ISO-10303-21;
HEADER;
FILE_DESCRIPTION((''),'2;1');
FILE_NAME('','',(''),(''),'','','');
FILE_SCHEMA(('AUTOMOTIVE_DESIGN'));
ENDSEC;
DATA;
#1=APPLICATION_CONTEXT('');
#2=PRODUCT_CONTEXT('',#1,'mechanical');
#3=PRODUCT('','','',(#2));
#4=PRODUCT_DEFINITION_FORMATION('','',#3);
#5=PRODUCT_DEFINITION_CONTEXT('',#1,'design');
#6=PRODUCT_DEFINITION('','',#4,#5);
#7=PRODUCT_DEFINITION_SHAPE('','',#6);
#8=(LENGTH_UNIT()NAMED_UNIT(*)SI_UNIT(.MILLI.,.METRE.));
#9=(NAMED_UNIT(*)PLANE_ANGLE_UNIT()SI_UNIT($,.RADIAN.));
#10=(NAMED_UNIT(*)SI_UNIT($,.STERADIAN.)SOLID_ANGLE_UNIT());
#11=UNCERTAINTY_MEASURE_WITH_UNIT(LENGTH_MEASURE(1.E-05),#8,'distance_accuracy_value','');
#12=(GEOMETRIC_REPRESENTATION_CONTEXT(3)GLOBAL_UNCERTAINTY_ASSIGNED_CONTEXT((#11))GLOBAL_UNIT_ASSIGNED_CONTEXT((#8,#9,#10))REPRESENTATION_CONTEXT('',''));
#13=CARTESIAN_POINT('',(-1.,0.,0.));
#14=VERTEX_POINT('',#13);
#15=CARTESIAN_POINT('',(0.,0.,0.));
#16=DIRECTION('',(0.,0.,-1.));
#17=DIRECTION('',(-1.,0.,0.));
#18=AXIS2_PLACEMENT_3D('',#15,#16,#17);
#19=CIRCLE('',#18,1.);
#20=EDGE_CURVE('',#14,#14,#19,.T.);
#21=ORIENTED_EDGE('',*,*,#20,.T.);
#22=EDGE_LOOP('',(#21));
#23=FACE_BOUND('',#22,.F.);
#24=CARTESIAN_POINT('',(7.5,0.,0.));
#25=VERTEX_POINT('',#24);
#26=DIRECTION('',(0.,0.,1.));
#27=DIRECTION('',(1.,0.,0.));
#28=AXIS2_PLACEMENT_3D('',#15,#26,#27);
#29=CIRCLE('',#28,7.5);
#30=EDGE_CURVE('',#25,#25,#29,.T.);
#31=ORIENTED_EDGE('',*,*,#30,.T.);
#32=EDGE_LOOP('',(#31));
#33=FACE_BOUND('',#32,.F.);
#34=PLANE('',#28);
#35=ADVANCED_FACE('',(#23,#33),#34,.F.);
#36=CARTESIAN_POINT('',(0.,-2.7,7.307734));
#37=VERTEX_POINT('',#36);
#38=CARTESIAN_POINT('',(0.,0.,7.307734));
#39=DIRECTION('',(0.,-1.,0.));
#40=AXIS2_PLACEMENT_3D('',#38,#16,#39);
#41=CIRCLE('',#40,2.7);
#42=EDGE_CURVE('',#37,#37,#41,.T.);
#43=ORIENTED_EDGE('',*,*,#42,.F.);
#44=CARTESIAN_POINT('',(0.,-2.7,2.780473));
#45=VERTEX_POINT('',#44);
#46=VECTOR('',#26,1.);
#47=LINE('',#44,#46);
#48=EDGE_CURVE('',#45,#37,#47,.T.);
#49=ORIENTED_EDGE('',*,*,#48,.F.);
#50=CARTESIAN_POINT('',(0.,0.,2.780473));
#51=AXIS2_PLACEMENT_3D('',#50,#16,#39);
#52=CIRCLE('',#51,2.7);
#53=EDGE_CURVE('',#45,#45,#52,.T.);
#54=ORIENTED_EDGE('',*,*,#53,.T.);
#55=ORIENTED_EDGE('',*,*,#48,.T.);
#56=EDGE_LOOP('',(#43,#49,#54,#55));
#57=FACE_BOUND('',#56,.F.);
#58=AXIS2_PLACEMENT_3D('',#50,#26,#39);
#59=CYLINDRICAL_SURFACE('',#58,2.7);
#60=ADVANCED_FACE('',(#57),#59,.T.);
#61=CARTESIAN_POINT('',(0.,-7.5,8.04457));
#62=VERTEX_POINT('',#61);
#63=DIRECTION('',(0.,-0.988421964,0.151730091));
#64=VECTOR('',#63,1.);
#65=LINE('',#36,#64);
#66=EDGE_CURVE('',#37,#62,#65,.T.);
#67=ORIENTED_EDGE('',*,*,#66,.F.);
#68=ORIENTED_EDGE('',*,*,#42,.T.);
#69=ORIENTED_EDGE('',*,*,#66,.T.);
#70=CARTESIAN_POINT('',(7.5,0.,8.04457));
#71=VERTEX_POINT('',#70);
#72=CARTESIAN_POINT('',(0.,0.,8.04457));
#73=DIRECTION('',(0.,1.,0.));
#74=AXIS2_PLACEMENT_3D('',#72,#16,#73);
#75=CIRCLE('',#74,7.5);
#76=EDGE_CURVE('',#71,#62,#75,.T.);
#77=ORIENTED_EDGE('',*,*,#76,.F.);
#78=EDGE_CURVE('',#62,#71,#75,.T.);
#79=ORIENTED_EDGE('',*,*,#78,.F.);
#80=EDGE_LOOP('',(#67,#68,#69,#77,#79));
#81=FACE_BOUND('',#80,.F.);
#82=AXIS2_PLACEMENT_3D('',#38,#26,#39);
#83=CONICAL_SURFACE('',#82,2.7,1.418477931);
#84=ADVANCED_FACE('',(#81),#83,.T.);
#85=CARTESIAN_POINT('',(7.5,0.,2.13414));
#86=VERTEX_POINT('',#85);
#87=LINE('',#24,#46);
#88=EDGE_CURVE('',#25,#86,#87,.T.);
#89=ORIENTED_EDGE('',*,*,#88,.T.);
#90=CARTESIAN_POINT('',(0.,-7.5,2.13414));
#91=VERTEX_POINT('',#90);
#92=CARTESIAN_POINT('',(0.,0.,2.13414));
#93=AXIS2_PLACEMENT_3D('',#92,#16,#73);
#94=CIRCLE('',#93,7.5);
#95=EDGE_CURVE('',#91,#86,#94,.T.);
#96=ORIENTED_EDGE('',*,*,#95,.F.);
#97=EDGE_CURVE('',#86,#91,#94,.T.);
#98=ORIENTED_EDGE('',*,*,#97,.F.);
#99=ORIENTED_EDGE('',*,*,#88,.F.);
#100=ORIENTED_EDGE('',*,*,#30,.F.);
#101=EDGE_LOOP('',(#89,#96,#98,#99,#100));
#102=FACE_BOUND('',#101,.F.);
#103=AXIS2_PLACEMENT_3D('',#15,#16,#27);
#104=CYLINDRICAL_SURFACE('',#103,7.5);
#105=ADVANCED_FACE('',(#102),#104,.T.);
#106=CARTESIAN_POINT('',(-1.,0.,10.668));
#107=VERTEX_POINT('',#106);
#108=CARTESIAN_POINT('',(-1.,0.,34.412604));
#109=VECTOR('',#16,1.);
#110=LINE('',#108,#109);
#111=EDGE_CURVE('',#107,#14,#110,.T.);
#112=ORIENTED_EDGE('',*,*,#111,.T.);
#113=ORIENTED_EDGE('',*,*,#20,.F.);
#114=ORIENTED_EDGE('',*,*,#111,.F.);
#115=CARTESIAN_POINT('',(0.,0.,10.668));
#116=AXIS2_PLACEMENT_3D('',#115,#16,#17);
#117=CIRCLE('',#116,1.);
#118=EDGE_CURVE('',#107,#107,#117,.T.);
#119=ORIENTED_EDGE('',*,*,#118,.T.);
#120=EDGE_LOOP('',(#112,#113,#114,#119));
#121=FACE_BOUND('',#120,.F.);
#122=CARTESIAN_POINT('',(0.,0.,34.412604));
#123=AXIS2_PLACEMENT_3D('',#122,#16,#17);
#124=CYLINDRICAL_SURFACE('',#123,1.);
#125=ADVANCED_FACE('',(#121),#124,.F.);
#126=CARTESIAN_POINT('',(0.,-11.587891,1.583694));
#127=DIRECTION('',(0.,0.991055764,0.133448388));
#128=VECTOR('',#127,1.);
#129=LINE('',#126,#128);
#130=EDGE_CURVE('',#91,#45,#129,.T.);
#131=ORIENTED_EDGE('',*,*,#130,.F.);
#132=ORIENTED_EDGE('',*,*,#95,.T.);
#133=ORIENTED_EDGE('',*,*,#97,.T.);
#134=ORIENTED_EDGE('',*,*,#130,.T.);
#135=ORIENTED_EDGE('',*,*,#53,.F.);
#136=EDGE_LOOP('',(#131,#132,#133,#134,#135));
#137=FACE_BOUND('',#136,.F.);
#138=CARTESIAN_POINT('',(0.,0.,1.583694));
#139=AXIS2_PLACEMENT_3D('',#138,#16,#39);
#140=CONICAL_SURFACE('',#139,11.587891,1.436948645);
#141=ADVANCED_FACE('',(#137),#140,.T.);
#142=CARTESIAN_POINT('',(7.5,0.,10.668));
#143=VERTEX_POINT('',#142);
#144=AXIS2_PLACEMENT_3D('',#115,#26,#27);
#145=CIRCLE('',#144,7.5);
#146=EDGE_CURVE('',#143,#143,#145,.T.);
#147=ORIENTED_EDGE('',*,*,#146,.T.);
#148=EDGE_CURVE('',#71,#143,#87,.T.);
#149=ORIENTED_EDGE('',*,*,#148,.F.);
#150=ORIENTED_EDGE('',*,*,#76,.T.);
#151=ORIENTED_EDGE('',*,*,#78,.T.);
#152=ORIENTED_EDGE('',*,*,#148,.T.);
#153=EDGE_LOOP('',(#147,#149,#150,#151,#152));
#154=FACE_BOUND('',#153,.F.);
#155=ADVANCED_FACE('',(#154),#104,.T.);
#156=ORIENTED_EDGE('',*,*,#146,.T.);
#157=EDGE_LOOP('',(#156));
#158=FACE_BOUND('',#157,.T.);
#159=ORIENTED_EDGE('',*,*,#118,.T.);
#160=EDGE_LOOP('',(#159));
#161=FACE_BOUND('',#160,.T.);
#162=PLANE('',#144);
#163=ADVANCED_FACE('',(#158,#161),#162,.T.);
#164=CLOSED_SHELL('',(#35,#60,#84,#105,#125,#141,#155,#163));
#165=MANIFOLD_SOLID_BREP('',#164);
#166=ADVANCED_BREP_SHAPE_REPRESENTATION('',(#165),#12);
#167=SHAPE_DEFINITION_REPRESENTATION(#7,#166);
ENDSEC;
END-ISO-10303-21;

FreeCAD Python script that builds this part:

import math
import FreeCAD as App
import Part
import Sketcher

doc = App.newDocument("Part")
body = doc.addObject("PartDesign::Body", "Body")

sketch1 = body.newObject("Sketcher::SketchObject", "Sketch")
sketch1.AttachmentSupport = (doc.getObject("XY_Plane"), [""])
sketch1.MapMode = "FlatFace"
sketch1.addGeometry(Part.Circle(App.Vector(0, 0, 0), App.Vector(0, 0, 1), 8), False)
sketch1.addConstraint(Sketcher.Constraint("Coincident", 0, 3, -1, 1))
sketch1.addConstraint(Sketcher.Constraint("Diameter", 0, 15.0))
pad1 = body.newObject("PartDesign::Pad", "Pad")
pad1.Profile = sketch1
pad1.Length = 10.668

sketch2 = body.newObject("Sketcher::SketchObject", "Sketch001")
sketch2.AttachmentSupport = (doc.getObject("YZ_Plane"), [""])
sketch2.MapMode = "FlatFace"
sketch2.addGeometry(Part.LineSegment(App.Vector(-11.6, 8.7, 0), App.Vector(-11.6, 7.5, 0)), False)
sketch2.addGeometry(Part.ArcOfCircle(Part.Circle(App.Vector(-10.8, 5.1, 0), App.Vector(0, 0, 1), 2.5), math.radians(108), math.radians(252)), False)
sketch2.addGeometry(Part.LineSegment(App.Vector(-11.6, 2.8, 0), App.Vector(-11.6, 1.6, 0)), False)
sketch2.addGeometry(Part.LineSegment(App.Vector(-11.6, 1.6, 0), App.Vector(-2.7, 2.8, 0)), False)
sketch2.addGeometry(Part.LineSegment(App.Vector(-2.7, 2.8, 0), App.Vector(-2.7, 7.3, 0)), False)
sketch2.addGeometry(Part.LineSegment(App.Vector(-2.7, 7.3, 0), App.Vector(-11.6, 8.7, 0)), False)
sketch2.addConstraint(Sketcher.Constraint("Coincident", 0, 2, 1, 1))
sketch2.addConstraint(Sketcher.Constraint("Coincident", 1, 2, 2, 1))
sketch2.addConstraint(Sketcher.Constraint("Coincident", 2, 2, 3, 1))
sketch2.addConstraint(Sketcher.Constraint("Coincident", 3, 2, 4, 1))
sketch2.addConstraint(Sketcher.Constraint("Coincident", 4, 2, 5, 1))
sketch2.addConstraint(Sketcher.Constraint("Coincident", 5, 2, 0, 1))
sketch2.addConstraint(Sketcher.Constraint("Vertical", 0))
sketch2.addConstraint(Sketcher.Constraint("Vertical", 2))
sketch2.addConstraint(Sketcher.Constraint("Vertical", 4))
sketch2.addConstraint(Sketcher.Constraint("Radius", 1, 2.5))
sketch2.addConstraint(Sketcher.Constraint("DistanceX", 3, 2, -1, 1, 2.7))
sketch2.addConstraint(Sketcher.Constraint("DistanceY", 2, 2, 2, 1, 1.1684))
sketch2.addConstraint(Sketcher.Constraint("DistanceY", 4, 1, 4, 2, 4.527261))
sketch2.addConstraint(Sketcher.Constraint("DistanceY", 1, 3, 4, 2, 2.176499))
sketch2.addConstraint(Sketcher.Constraint("Distance", 5, 9.016379))
sketch2.addConstraint(Sketcher.Constraint("DistanceY", 0, 2, 0, 1, 1.173327))
sketch2.addConstraint(Sketcher.Constraint("DistanceX", 1, 3, -1, 1, 10.819979))
sketch2.addConstraint(Sketcher.Constraint("DistanceX", 1, 2, -1, 1, 11.587891))
sketch2.addConstraint(Sketcher.Constraint("DistanceY", -1, 1, 5, 2, 8.67579))
groove = body.newObject("PartDesign::Groove", "Groove")
groove.Profile = sketch2
groove.ReferenceAxis = (sketch2, ["V_Axis"])
groove.Angle = 360

sketch3 = body.newObject("Sketcher::SketchObject", "Sketch002")
sketch3.AttachmentSupport = (doc.getObject("XY_Plane"), [""])
sketch3.MapMode = "FlatFace"
sketch3.AttachmentOffset = App.Placement(App.Vector(0, 0, 10.668), App.Rotation())
sketch3.addGeometry(Part.Circle(App.Vector(0, 0, 0), App.Vector(0, 0, 1), 1), False)
sketch3.addConstraint(Sketcher.Constraint("Coincident", 0, 3, -1, 1))
sketch3.addConstraint(Sketcher.Constraint("Diameter", 0, 2.0))
doc.recompute()
hole = body.newObject("PartDesign::Hole", "Hole")
hole.Profile = sketch3
hole.ThreadType = "None"
hole.Diameter = 2
hole.DepthType = "ThroughAll"

doc.recompute()
